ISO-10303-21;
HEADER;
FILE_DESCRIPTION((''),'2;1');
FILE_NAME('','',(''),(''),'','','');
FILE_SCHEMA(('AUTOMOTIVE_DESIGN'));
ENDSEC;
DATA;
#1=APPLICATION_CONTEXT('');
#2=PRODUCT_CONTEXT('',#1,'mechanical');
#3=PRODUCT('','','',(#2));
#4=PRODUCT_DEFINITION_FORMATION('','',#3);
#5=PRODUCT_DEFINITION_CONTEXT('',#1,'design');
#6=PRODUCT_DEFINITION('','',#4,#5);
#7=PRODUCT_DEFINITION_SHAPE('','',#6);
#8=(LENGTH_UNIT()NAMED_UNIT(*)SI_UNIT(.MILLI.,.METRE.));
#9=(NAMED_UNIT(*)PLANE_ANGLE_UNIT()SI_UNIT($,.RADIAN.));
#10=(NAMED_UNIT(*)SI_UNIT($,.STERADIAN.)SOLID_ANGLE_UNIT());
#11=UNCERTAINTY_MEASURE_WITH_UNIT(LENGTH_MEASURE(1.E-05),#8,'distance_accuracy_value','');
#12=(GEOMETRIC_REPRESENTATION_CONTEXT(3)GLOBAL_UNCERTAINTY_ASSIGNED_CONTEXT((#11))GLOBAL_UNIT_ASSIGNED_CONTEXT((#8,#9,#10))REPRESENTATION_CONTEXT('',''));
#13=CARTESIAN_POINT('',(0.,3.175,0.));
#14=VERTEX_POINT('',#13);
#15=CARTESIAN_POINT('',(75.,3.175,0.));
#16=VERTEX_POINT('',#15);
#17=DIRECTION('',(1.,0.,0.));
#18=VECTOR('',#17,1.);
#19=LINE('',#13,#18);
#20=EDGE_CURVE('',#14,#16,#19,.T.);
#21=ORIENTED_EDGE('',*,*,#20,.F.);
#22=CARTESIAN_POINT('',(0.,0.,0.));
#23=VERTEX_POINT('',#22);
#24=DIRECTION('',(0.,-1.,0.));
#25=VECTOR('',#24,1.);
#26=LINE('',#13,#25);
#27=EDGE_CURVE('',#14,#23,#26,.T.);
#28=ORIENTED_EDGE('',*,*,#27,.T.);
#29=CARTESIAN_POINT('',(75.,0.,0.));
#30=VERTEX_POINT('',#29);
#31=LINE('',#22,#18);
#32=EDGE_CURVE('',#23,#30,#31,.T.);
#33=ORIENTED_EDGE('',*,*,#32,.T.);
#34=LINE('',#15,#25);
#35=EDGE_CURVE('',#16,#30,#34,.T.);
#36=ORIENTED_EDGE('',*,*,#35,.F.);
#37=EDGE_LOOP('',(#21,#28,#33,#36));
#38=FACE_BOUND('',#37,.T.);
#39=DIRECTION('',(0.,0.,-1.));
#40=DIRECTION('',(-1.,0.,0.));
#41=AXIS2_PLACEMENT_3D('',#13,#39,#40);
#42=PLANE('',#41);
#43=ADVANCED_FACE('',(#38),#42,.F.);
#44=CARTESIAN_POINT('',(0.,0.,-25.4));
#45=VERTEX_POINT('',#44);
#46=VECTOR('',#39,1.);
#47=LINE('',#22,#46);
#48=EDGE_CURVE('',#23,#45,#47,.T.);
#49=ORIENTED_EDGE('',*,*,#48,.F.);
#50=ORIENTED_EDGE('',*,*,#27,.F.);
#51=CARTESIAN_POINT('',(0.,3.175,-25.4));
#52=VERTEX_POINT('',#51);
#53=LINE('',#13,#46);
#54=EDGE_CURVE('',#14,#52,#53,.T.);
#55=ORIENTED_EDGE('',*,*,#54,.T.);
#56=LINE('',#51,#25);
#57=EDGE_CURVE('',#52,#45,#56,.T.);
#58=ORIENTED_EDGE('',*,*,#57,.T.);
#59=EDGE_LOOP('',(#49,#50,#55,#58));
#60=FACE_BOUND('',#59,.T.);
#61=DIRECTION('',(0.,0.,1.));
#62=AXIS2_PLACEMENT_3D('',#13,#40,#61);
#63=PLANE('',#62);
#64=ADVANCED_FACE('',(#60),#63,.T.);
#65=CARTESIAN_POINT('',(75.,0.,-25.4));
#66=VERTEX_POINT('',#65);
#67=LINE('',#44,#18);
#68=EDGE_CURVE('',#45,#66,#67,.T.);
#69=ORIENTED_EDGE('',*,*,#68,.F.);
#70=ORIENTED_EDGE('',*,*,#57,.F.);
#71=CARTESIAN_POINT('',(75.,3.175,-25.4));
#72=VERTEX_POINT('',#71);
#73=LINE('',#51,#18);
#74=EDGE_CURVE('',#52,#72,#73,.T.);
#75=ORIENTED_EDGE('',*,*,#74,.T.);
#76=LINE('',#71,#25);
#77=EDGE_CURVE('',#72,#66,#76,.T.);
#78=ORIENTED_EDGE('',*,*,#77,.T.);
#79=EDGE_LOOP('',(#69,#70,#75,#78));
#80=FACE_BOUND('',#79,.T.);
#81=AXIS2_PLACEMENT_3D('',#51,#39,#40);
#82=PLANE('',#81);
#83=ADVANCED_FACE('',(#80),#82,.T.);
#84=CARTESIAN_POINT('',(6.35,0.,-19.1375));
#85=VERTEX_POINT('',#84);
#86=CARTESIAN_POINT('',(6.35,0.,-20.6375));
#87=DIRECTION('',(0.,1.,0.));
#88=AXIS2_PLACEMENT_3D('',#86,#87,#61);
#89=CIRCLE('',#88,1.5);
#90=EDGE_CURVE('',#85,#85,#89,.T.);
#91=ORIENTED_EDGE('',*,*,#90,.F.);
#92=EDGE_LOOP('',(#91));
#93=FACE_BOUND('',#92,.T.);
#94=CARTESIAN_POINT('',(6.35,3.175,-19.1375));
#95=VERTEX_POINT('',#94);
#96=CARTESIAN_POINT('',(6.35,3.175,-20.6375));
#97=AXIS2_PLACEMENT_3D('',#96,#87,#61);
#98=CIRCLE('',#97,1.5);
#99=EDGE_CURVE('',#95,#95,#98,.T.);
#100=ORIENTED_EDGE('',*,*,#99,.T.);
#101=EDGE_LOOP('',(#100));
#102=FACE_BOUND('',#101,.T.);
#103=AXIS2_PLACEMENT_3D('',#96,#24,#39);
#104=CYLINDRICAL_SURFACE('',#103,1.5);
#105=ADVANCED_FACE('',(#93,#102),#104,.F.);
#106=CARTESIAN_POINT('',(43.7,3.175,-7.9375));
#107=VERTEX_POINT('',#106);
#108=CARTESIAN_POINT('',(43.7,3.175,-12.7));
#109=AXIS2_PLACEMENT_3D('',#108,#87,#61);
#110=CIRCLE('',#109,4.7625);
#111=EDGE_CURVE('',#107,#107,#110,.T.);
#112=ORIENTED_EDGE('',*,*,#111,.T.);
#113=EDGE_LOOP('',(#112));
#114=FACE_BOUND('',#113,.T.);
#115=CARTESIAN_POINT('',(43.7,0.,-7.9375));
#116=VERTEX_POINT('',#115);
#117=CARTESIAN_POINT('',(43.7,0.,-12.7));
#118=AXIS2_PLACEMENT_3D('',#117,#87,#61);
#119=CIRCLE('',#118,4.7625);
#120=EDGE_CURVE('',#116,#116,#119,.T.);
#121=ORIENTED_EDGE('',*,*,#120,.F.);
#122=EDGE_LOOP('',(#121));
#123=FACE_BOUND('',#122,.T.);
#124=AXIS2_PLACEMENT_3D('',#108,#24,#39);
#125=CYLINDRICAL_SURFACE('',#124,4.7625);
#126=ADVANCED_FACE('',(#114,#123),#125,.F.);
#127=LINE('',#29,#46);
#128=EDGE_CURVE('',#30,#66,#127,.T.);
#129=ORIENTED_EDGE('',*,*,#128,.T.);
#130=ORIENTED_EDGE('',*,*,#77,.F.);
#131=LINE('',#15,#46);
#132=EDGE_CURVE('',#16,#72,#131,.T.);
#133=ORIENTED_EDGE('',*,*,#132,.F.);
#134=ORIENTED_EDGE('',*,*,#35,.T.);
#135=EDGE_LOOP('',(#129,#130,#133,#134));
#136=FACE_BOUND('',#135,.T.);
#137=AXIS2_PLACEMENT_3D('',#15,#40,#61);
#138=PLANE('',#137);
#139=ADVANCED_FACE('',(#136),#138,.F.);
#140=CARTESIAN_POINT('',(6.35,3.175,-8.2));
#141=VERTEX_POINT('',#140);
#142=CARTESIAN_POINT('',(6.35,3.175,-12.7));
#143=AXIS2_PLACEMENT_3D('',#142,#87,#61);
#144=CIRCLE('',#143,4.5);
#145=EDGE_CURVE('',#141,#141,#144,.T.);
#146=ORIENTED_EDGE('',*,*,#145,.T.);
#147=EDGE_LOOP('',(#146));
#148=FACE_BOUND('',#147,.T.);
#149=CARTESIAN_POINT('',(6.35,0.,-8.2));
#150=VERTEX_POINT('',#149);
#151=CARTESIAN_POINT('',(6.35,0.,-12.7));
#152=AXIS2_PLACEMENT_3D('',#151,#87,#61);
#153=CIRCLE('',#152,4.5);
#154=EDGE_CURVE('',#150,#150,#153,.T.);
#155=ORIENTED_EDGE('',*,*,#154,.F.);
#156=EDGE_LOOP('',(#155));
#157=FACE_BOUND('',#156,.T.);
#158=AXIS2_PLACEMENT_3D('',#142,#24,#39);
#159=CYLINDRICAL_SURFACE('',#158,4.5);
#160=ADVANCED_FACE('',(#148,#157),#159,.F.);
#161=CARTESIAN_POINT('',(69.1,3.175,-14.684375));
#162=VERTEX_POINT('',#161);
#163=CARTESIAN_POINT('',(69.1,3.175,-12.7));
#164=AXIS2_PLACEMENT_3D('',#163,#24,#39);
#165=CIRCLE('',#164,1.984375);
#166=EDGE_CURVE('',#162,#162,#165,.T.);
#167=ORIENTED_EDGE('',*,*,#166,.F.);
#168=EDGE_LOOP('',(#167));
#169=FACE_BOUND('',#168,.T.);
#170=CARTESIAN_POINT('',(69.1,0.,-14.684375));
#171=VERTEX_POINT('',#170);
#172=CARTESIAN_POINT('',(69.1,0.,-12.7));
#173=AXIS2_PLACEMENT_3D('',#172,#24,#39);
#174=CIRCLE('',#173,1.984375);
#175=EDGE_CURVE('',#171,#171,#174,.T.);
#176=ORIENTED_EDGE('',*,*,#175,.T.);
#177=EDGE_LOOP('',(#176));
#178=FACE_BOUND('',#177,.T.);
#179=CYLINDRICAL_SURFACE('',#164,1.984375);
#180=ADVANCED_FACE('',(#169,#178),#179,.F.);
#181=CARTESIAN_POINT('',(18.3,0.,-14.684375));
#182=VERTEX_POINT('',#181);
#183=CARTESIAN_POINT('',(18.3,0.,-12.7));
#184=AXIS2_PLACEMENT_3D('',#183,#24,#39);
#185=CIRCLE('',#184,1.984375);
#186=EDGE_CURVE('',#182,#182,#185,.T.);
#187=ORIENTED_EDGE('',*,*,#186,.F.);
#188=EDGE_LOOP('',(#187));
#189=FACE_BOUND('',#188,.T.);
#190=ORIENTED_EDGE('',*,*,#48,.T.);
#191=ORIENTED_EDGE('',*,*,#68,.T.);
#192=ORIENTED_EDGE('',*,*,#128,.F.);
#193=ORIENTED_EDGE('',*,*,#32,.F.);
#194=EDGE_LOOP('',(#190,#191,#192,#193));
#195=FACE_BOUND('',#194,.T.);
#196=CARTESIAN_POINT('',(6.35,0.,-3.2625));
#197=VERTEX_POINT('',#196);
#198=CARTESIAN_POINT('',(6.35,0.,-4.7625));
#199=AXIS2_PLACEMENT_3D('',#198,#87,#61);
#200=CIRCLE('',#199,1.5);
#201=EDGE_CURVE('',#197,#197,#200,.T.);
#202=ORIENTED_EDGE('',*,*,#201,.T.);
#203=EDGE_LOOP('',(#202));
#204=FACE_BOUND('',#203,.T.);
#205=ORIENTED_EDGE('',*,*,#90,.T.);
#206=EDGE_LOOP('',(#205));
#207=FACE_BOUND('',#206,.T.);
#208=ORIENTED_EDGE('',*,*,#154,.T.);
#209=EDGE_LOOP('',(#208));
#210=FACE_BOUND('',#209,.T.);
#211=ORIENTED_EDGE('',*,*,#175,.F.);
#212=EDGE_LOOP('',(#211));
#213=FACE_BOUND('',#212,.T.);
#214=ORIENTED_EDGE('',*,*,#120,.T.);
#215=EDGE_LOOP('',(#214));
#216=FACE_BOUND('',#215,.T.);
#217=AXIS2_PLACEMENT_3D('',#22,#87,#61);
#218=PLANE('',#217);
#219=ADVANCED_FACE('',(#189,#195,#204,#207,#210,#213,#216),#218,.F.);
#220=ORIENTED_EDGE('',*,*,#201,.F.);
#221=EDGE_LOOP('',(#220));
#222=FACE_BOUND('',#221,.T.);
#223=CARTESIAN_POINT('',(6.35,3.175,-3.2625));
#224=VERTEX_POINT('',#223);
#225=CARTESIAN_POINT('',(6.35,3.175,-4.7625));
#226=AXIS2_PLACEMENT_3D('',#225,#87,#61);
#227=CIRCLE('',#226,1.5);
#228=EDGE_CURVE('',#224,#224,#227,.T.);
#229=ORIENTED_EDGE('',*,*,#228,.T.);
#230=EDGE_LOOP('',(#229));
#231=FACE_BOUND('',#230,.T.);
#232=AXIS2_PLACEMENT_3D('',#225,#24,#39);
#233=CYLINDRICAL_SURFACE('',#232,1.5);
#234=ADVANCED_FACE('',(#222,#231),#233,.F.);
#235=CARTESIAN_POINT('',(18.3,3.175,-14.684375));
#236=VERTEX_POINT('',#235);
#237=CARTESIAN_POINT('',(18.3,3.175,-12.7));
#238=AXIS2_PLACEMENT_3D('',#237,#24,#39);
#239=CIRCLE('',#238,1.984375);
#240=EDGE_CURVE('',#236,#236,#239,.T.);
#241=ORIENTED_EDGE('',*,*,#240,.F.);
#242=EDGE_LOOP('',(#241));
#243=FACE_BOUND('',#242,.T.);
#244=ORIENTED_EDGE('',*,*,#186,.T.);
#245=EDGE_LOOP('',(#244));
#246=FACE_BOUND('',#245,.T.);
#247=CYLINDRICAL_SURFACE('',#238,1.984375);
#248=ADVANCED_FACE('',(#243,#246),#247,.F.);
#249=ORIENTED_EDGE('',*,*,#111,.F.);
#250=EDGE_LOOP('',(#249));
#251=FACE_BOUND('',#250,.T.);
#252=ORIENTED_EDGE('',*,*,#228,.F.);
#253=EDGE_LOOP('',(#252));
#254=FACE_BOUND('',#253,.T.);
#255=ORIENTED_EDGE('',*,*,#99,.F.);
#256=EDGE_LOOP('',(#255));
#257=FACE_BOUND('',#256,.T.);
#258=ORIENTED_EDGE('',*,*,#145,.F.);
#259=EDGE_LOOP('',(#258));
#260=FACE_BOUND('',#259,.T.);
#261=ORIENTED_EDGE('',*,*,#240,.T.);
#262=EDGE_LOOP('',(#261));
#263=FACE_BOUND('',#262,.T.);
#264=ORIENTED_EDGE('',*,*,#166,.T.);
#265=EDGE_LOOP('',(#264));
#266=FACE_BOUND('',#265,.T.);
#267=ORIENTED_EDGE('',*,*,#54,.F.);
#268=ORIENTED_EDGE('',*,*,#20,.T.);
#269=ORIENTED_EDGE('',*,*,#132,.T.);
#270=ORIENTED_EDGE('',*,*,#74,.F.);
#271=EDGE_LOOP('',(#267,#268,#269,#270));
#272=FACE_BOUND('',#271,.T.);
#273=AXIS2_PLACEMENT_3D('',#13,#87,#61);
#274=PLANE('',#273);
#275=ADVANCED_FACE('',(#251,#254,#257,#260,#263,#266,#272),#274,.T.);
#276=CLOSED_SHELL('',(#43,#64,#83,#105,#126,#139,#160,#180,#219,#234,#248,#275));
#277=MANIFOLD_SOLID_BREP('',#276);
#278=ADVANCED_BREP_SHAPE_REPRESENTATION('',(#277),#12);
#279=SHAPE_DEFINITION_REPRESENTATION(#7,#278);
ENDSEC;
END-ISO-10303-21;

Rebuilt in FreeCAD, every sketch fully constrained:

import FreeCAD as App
import Part
import Sketcher
from FreeCAD import Vector
Q = App.Units.Quantity


def add_polygon(sketch, points):
    """Adds a closed chain of lines whose ends are joined by coincident constraints."""
    first, n = sketch.GeometryCount, len(points)
    for a, b in zip(points, points[1:] + points[:1]):
        sketch.addGeometry(Part.LineSegment(App.Vector(*a, 0), App.Vector(*b, 0)), False)
    for i in range(n):
        sketch.addConstraint(Sketcher.Constraint("Coincident", first + i, 2, first + (i + 1) % n, 1))

doc = App.newDocument("Part")
body = doc.addObject("PartDesign::Body", "Body")

sketch1 = doc.addObject("Sketcher::SketchObject", "Sketch")
body.addObject(sketch1)
sketch1.AttachmentSupport = (doc.XZ_Plane, [""])
sketch1.MapMode = "FlatFace"
add_polygon(sketch1, [(0, -25.4), (0, 0), (75, 0), (75, -25.4)])
sketch1.addGeometry(Part.Circle(Vector(6.3, -4.8, 0), Vector(0, 0, 1), 1.5), False)
sketch1.addGeometry(Part.Circle(Vector(6.3, -12.7, 0), Vector(0, 0, 1), 4.5), False)
sketch1.addGeometry(Part.Circle(Vector(6.3, -20.6, 0), Vector(0, 0, 1), 1.5), False)
sketch1.addGeometry(Part.Circle(Vector(43.7, -12.7, 0), Vector(0, 0, 1), 4.8), False)
sketch1.addConstraint(Sketcher.Constraint("Vertical", 0))
sketch1.addConstraint(Sketcher.Constraint("Horizontal", 1))
sketch1.addConstraint(Sketcher.Constraint("Vertical", 2))
sketch1.addConstraint(Sketcher.Constraint("Horizontal", 3))
sketch1.addConstraint(Sketcher.Constraint("Coincident", 0, 2, -1, 1))
sketch1.addConstraint(Sketcher.Constraint("Equal", 4, 6))
sketch1.addConstraint(Sketcher.Constraint("Horizontal", 5, 3, 7, 3))
sketch1.addConstraint(Sketcher.Constraint("Vertical", 4, 3, 5, 3))
sketch1.addConstraint(Sketcher.Constraint("Vertical", 5, 3, 6, 3))
sketch1.addConstraint(Sketcher.Constraint("DistanceY", 0, 1, 0, 2, Q("1 in")))
sketch1.addConstraint(Sketcher.Constraint("Diameter", 7, Q("0.375 in")))
sketch1.addConstraint(Sketcher.Constraint("DistanceY", 5, 3, -1, 1, Q("0.5 in")))
sketch1.addConstraint(Sketcher.Constraint("Diameter", 4, Q("3 mm")))
sketch1.addConstraint(Sketcher.Constraint("Diameter", 5, Q("9 mm")))
sketch1.addConstraint(Sketcher.Constraint("DistanceX", -1, 1, 4, 3, Q("0.25 in")))
sketch1.addConstraint(Sketcher.Constraint("DistanceY", 4, 3, -1, 1, Q("0.1875 in")))
sketch1.addConstraint(Sketcher.Constraint("DistanceY", 6, 3, -1, 1, Q("0.8125 in")))
sketch1.addConstraint(Sketcher.Constraint("DistanceX", 1, 1, 1, 2, Q("75 mm")))
sketch1.addConstraint(Sketcher.Constraint("DistanceX", -1, 1, 7, 3, Q("43.7 mm")))
pad1 = doc.addObject("PartDesign::Pad", "Pad")
body.addObject(pad1)
pad1.Profile = sketch1
pad1.Length = Q("0.125 in")
pad1.Reversed = True

sketch2 = doc.addObject("Sketcher::SketchObject", "Sketch001")
body.addObject(sketch2)
sketch2.AttachmentSupport = (doc.XZ_Plane, [""])
sketch2.MapMode = "FlatFace"
sketch2.addGeometry(Part.Circle(Vector(18.3, -12.7, 0), Vector(0, 0, 1), 2), False)
sketch2.addGeometry(Part.Circle(Vector(69.1, -12.7, 0), Vector(0, 0, 1), 2), False)
sketch2.addConstraint(Sketcher.Constraint("Equal", 0, 1))
sketch2.addConstraint(Sketcher.Constraint("Horizontal", 0, 3, 1, 3))
sketch2.addConstraint(Sketcher.Constraint("Diameter", 0, Q("0.15625 in")))
sketch2.addConstraint(Sketcher.Constraint("DistanceX", 0, 3, 1, 3, Q("2 in")))
sketch2.addConstraint(Sketcher.Constraint("DistanceY", 0, 3, -1, 1, Q("0.5 in")))
sketch2.addConstraint(Sketcher.Constraint("DistanceX", -1, 1, 0, 3, Q("18.3 mm")))
pocket1 = doc.addObject("PartDesign::Pocket", "Pocket")
body.addObject(pocket1)
pocket1.Profile = sketch2
pocket1.Length = Q("0.125 in")

doc.recompute()
